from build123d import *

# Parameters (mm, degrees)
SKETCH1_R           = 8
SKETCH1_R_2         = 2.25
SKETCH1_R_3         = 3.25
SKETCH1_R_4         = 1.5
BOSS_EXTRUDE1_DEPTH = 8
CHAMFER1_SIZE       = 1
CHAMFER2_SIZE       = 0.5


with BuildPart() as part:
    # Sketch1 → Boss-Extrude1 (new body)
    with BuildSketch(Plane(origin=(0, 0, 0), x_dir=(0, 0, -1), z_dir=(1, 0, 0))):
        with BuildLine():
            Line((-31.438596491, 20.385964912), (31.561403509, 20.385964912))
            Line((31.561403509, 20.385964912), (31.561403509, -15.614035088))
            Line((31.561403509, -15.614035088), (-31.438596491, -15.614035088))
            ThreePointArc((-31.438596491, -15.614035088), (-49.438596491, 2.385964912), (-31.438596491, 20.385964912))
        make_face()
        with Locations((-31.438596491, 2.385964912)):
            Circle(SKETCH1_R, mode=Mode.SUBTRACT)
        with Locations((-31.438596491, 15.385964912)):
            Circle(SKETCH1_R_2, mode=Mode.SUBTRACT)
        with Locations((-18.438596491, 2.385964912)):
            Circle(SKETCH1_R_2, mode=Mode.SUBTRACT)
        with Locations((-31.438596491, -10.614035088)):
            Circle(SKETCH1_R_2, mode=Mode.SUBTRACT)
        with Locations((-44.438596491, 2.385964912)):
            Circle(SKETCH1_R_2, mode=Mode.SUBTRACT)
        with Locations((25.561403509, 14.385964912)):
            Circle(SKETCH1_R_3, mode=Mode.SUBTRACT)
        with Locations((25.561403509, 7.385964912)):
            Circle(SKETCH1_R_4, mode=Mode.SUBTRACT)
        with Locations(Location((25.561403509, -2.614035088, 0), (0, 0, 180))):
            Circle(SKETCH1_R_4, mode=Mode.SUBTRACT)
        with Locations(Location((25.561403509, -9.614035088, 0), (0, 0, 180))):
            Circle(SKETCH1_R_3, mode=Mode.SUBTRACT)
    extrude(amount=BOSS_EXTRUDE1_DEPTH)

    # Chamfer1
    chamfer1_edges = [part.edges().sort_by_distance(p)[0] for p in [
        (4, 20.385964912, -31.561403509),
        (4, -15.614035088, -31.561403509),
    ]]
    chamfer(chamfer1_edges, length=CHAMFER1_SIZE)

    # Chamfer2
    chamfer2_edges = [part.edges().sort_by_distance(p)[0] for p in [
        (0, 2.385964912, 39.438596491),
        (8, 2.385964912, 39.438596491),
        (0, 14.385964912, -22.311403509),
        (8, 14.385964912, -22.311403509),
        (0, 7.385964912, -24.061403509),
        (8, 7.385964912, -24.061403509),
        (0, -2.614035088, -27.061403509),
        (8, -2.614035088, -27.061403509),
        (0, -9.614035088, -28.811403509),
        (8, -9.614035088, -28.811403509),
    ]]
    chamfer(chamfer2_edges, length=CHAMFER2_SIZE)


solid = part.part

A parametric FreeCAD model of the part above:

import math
import FreeCAD as App
import Part
import Sketcher
from FreeCAD import Vector
Q = App.Units.Quantity


def edges_at(feature, points):
    """Names of the edges that pass closest to the given points."""
    edges = feature.Shape.Edges
    near = lambda p: min(range(len(edges)), key=lambda i: edges[i].distToShape(Part.Vertex(*p))[0])
    return sorted({f"Edge{near(p) + 1}" for p in points})

doc = App.newDocument("Part")
body = doc.addObject("PartDesign::Body", "Body")

sketch1 = body.newObject("Sketcher::SketchObject", "Sketch")
sketch1.AttachmentSupport = (doc.getObject("YZ_Plane"), [""])
sketch1.MapMode = "FlatFace"
sketch1.addGeometry([
    Part.LineSegment(Vector(20.4, -31.6, 0), Vector(20.4, 31.4, 0)),
    Part.ArcOfCircle(Part.Circle(Vector(2.4, 31.4, 0), Vector(0, 0, 1), 18), math.radians(0), math.radians(180)),
    Part.LineSegment(Vector(-15.6, 31.4, 0), Vector(-15.6, -31.6, 0)),
    Part.LineSegment(Vector(-15.6, -31.6, 0), Vector(20.4, -31.6, 0)),
    Part.Circle(Vector(-9.6, -25.6, 0), Vector(0, 0, 1), 3.2),
    Part.Circle(Vector(-2.6, -25.6, 0), Vector(0, 0, 1), 1.5),
    Part.Circle(Vector(-10.6, 31.4, 0), Vector(0, 0, 1), 2.2),
    Part.Circle(Vector(7.4, -25.6, 0), Vector(0, 0, 1), 1.5),
    Part.Circle(Vector(14.4, -25.6, 0), Vector(0, 0, 1), 3.2),
    Part.Circle(Vector(2.4, 18.4, 0), Vector(0, 0, 1), 2.2),
    Part.Circle(Vector(2.4, 31.4, 0), Vector(0, 0, 1), 8),
    Part.Circle(Vector(2.4, 44.4, 0), Vector(0, 0, 1), 2.2),
    Part.Circle(Vector(15.4, 31.4, 0), Vector(0, 0, 1), 2.2),
], False)
sketch1.addConstraint([
    Sketcher.Constraint("Tangent", 0, 2, 1, 1),
    Sketcher.Constraint("Tangent", 1, 2, 2, 1),
    Sketcher.Constraint("Coincident", 2, 2, 3, 1),
    Sketcher.Constraint("Coincident", 3, 2, 0, 1),
    Sketcher.Constraint("Vertical", 0),
    Sketcher.Constraint("Vertical", 2),
    Sketcher.Constraint("Horizontal", 3),
    Sketcher.Constraint("Coincident", 10, 3, 1, 3),
    Sketcher.Constraint("Equal", 5, 7),
    Sketcher.Constraint("Equal", 4, 8),
    Sketcher.Constraint("Equal", 6, 9),
    Sketcher.Constraint("Equal", 9, 11),
    Sketcher.Constraint("Equal", 11, 12),
    Sketcher.Constraint("Horizontal", 4, 3, 5, 3),
    Sketcher.Constraint("Horizontal", 1, 3, 6, 3),
    Sketcher.Constraint("Horizontal", 5, 3, 7, 3),
    Sketcher.Constraint("Horizontal", 7, 3, 8, 3),
    Sketcher.Constraint("Horizontal", 10, 3, 12, 3),
    Sketcher.Constraint("Vertical", 1, 3, 9, 3),
    Sketcher.Constraint("Vertical", 10, 3, 11, 3),
    Sketcher.Constraint("Diameter", 5, Q("3 mm")),
    Sketcher.Constraint("Diameter", 10, Q("16 mm")),
    Sketcher.Constraint("Radius", 1, Q("18 mm")),
    Sketcher.Constraint("Diameter", 4, Q("6.5 mm")),
    Sketcher.Constraint("Diameter", 6, Q("4.5 mm")),
    Sketcher.Constraint("DistanceY", 0, 1, 0, 2, Q("63 mm")),
    Sketcher.Constraint("DistanceX", 4, 3, 1, 3, Q("12 mm")),
    Sketcher.Constraint("DistanceY", 4, 3, 1, 3, Q("57 mm")),
    Sketcher.Constraint("DistanceX", 4, 3, 5, 3, Q("7 mm")),
    Sketcher.Constraint("DistanceX", 6, 3, 1, 3, Q("13 mm")),
    Sketcher.Constraint("DistanceX", 5, 3, 7, 3, Q("10 mm")),
    Sketcher.Constraint("DistanceX", 7, 3, 8, 3, Q("7 mm")),
    Sketcher.Constraint("DistanceY", 9, 3, 1, 3, Q("13 mm")),
    Sketcher.Constraint("DistanceY", 1, 3, 11, 3, Q("13 mm")),
    Sketcher.Constraint("DistanceX", 1, 3, 12, 3, Q("13 mm")),
    Sketcher.Constraint("DistanceX", -1, 1, 1, 3, Q("2.385965 mm")),
    Sketcher.Constraint("DistanceY", -1, 1, 1, 3, Q("31.438596 mm")),
])
pad1 = body.newObject("PartDesign::Pad", "Pad")
pad1.Profile = sketch1
pad1.Length = 8
doc.recompute()

chamfer = body.newObject("PartDesign::Chamfer", "Chamfer")
chamfer.Base = (pad1, edges_at(pad1, [(4, 20.386, -31.561), (4, -15.614, -31.561)]))
chamfer.Size = 1
doc.recompute()

chamfer2 = body.newObject("PartDesign::Chamfer", "Chamfer001")
chamfer2.Base = (chamfer, edges_at(chamfer, [
    (0, 2.386, 39.439),
    (8, 2.386, 39.439),
    (0, 14.386, -22.311),
    (8, 14.386, -22.311),
    (0, 7.386, -24.061),
    (8, 7.386, -24.061),
    (0, -2.614, -27.061),
    (8, -2.614, -27.061),
    (0, -9.614, -28.811),
    (8, -9.614, -28.811),
]))
chamfer2.Size = 0.5

doc.recompute()
